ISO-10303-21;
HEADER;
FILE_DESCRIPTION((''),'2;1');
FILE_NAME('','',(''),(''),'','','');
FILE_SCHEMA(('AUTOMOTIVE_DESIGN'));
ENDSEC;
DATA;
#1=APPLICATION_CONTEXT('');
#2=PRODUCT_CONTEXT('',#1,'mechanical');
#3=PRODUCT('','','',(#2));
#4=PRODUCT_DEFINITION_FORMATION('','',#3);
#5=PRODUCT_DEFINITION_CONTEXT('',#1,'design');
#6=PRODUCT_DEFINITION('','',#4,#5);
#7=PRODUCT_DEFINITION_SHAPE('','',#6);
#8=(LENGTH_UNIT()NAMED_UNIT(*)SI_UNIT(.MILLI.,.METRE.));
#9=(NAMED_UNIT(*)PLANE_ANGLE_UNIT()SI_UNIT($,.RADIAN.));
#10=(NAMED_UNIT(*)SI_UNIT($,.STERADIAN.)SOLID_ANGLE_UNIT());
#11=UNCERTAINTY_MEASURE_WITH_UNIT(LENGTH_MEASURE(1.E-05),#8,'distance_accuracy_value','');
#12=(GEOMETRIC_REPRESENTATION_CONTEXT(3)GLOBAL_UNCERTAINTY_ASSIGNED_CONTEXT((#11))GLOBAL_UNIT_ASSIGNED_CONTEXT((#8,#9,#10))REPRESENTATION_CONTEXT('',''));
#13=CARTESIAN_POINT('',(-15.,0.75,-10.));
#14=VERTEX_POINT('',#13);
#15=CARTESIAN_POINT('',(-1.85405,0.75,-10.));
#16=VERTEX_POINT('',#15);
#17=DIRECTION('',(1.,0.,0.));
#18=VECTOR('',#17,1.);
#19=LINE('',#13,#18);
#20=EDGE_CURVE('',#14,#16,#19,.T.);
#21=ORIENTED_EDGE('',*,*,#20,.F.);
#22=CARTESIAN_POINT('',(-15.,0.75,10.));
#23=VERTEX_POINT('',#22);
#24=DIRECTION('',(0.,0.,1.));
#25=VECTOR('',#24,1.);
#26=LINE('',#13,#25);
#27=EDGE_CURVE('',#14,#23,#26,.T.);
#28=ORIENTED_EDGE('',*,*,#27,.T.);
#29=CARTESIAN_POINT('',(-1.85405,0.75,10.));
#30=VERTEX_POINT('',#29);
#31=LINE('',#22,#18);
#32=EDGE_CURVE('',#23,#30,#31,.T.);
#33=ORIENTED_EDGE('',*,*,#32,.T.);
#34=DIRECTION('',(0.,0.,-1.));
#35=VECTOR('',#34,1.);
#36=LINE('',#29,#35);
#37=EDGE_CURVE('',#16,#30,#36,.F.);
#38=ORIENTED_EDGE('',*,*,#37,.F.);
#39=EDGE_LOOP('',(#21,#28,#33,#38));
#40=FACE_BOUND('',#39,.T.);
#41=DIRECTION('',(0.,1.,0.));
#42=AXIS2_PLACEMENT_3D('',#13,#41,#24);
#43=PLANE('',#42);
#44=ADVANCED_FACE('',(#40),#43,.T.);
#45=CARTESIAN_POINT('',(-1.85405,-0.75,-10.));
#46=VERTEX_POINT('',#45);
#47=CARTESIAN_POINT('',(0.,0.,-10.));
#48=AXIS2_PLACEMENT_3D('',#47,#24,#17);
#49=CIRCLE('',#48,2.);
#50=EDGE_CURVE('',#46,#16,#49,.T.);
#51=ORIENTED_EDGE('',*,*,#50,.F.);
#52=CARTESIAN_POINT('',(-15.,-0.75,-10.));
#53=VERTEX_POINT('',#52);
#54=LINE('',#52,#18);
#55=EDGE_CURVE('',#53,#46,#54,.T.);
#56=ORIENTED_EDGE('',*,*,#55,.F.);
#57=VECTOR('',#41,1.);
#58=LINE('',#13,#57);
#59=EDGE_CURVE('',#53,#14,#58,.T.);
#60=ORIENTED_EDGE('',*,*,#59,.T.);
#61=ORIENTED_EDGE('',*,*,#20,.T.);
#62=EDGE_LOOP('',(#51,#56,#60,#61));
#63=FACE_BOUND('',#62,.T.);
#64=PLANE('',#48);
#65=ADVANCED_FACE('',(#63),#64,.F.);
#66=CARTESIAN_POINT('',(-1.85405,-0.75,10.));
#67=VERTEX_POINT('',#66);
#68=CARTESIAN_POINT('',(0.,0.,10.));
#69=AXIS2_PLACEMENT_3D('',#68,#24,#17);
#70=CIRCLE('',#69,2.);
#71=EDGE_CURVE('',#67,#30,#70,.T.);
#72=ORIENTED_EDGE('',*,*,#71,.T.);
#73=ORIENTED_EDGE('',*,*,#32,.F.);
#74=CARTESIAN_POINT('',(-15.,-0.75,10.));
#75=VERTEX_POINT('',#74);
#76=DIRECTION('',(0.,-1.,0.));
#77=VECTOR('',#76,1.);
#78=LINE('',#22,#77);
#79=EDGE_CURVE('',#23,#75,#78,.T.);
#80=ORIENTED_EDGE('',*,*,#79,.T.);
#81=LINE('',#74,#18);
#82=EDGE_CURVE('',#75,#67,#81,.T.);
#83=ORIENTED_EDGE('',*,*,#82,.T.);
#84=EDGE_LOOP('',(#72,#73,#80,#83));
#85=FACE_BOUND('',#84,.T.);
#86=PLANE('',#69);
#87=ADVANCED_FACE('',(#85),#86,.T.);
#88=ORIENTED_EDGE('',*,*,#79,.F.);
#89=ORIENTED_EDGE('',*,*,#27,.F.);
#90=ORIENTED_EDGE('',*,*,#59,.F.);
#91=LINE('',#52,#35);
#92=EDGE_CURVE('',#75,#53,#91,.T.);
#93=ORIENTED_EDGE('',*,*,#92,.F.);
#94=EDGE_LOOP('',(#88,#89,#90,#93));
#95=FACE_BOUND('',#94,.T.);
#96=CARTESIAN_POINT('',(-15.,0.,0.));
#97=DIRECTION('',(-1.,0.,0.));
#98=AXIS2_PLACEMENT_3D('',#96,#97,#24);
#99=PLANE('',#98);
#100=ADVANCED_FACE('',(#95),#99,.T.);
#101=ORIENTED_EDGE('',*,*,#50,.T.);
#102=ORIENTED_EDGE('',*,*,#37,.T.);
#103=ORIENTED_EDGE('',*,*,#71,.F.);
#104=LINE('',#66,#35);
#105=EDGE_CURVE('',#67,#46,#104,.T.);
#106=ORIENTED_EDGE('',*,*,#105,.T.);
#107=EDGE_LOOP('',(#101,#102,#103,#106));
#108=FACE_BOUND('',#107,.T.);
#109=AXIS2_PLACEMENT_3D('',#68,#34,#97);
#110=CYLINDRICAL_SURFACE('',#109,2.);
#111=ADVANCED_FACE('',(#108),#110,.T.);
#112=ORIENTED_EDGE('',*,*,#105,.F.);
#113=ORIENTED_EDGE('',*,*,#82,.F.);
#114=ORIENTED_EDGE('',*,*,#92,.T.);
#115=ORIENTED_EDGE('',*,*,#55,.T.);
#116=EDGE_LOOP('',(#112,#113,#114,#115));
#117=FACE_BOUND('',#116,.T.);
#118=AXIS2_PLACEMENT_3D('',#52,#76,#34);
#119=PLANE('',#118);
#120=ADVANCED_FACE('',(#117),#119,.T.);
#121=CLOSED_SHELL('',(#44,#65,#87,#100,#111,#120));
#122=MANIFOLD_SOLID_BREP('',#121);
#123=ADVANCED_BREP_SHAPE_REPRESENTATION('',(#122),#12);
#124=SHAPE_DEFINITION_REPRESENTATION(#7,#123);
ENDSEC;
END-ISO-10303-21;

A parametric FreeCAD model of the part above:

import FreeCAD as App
import Part
import Sketcher

V = App.Vector
Q = App.Units.Quantity


def add_polygon(sketch, points):
    """Adds a closed chain of lines whose ends are joined by coincident constraints."""
    first, n = sketch.GeometryCount, len(points)
    for a, b in zip(points, points[1:] + points[:1]):
        sketch.addGeometry(Part.LineSegment(App.Vector(*a, 0), App.Vector(*b, 0)), False)
    for i in range(n):
        sketch.addConstraint(Sketcher.Constraint("Coincident", first + i, 2, first + (i + 1) % n, 1))

doc = App.newDocument("Part")
params = doc.addObject("Spreadsheet::Sheet", "Params")
for row, (alias, value) in enumerate([
    ("sketch1_diameter", "4 mm"),
    ("pad1_length", "20 mm"),
    ("sketch2_height", "20 mm"),
    ("sketch2_width", "1.5 mm"),
    ("pad2_length", "15 mm"),
], start=1):
    params.set(f"A{row}", alias)
    params.set(f"B{row}", "=" + value)
    params.setAlias(f"B{row}", alias)

body = doc.addObject("PartDesign::Body", "Body")

# Sketch on XY plane
sketch1 = body.newObject("Sketcher::SketchObject", "Sketch")
sketch1.AttachmentSupport = (doc.getObject("XY_Plane"), [""])
sketch1.MapMode = "FlatFace"
sketch1.addGeometry(Part.Circle(V(0, 0, 0), V(0, 0, 1), 2), False)
sketch1.addConstraint([
    Sketcher.Constraint("Coincident", 0, 3, -1, 1),
    Sketcher.Constraint("Diameter", 0, Q("4 mm")),
])
sketch1.setExpression("Constraints[1]", "Params.sketch1_diameter")
pad1 = body.newObject("PartDesign::Pad", "Pad")
pad1.Profile = sketch1
pad1.setExpression("Length", "Params.pad1_length")
pad1.Midplane = True

# Sketch on YZ plane
sketch2 = body.newObject("Sketcher::SketchObject", "Sketch001")
sketch2.AttachmentSupport = (doc.getObject("YZ_Plane"), [""])
sketch2.MapMode = "FlatFace"
add_polygon(sketch2, [(0.75, 10), (-0.75, 10), (-0.75, -10), (0.75, -10)])  # lines 0-3
sketch2.addConstraint([
    Sketcher.Constraint("Horizontal", 0),
    Sketcher.Constraint("Vertical", 1),
    Sketcher.Constraint("Horizontal", 2),
    Sketcher.Constraint("Vertical", 3),
    Sketcher.Constraint("Symmetric", 0, 2, 2, 2, -1, 1),
    Sketcher.Constraint("DistanceY", 1, 2, 1, 1, Q("20 mm")),
    Sketcher.Constraint("DistanceX", 0, 2, 0, 1, Q("1.5 mm")),
])
sketch2.setExpression("Constraints[9]", "Params.sketch2_height")
sketch2.setExpression("Constraints[10]", "Params.sketch2_width")
pad2 = body.newObject("PartDesign::Pad", "Pad001")
pad2.Profile = sketch2
pad2.setExpression("Length", "Params.pad2_length")
pad2.Reversed = True

doc.recompute()
